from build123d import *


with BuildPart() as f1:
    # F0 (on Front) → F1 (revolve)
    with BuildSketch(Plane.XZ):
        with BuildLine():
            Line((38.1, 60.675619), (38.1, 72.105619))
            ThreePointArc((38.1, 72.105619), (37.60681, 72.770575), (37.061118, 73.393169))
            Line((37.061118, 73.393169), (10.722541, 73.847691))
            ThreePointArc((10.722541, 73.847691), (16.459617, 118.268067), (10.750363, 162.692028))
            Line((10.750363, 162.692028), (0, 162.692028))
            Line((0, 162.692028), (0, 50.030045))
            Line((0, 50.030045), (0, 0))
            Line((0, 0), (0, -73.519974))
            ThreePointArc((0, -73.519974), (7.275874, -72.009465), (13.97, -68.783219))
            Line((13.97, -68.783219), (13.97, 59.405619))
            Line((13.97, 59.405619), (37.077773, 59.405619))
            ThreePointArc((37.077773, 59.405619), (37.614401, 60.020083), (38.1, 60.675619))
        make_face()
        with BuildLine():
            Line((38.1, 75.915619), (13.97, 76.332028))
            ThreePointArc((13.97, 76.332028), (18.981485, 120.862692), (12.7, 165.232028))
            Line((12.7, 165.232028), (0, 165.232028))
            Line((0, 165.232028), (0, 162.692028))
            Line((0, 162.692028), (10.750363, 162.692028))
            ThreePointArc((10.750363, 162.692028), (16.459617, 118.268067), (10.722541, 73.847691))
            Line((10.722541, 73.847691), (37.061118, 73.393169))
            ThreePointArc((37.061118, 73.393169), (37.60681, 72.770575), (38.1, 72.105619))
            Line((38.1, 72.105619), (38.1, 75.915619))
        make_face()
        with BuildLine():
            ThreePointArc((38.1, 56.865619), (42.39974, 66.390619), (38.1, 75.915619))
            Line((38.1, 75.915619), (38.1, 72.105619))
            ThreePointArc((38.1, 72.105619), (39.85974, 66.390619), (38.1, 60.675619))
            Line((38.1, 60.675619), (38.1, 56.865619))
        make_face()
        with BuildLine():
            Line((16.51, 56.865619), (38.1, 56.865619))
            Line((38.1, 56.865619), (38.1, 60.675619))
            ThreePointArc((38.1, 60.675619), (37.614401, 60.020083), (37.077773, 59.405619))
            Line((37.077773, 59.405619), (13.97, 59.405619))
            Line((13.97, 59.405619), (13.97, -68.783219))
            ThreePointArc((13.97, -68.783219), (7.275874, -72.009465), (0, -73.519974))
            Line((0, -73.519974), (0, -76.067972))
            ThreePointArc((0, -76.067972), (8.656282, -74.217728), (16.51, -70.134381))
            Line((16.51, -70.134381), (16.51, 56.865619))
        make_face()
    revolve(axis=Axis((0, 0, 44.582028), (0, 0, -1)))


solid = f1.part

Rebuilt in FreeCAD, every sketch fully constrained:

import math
import FreeCAD as App
import Part
import Sketcher
from FreeCAD import Vector
Q = App.Units.Quantity

doc = App.newDocument("Part")
body = doc.addObject("PartDesign::Body", "Body")

sketch1 = body.newObject("Sketcher::SketchObject", "Sketch")
sketch1.AttachmentSupport = (doc.getObject("XZ_Plane"), [""])
sketch1.MapMode = "FlatFace"
sketch1.addGeometry(Part.LineSegment(Vector(0, 165.232028, 0), Vector(0, -76.067972, 0)), False)
sketch1.addGeometry(Part.ArcOfCircle(Part.Circle(Vector(-2.511562, -43.14361, 0), Vector(0, 0, 1), 33.020017), math.radians(-85.637766), math.radians(-54.825993)), False)
sketch1.addGeometry(Part.LineSegment(Vector(16.51, -70.134381, 0), Vector(16.51, 56.865619, 0)), False)
sketch1.addGeometry(Part.LineSegment(Vector(16.51, 56.865619, 0), Vector(38.1, 56.865619, 0)), False)
sketch1.addGeometry(Part.ArcOfCircle(Part.Circle(Vector(29.699741, 66.390619, 0), Vector(0, 0, 1), 12.699999), math.radians(-48.590382), math.radians(48.590382)), False)
sketch1.addGeometry(Part.LineSegment(Vector(38.1, 75.915619, 0), Vector(13.97, 76.332028, 0)), False)
sketch1.addGeometry(Part.ArcOfCircle(Part.Circle(Vector(-158.800382, 118.322951, 0), Vector(0, 0, 1), 177.800007), math.radians(-13.660566), math.radians(15.297477)), False)
sketch1.addGeometry(Part.LineSegment(Vector(12.7, 165.232028, 0), Vector(0, 165.232028, 0)), False)
sketch1.addGeometry(Part.ArcOfCircle(Part.Circle(Vector(29.699742, 66.390619, 0), Vector(0, 0, 1), 10.159998), math.radians(-34.228874), math.radians(34.228874)), False)
sketch1.addGeometry(Part.LineSegment(Vector(38.1, 60.675619, 0), Vector(38.1, 72.105619, 0)), False)
sketch1.addConstraint(Sketcher.Constraint("Coincident", 0, 2, 1, 1))
sketch1.addConstraint(Sketcher.Constraint("Coincident", 1, 2, 2, 1))
sketch1.addConstraint(Sketcher.Constraint("Coincident", 2, 2, 3, 1))
sketch1.addConstraint(Sketcher.Constraint("Coincident", 3, 2, 4, 1))
sketch1.addConstraint(Sketcher.Constraint("Coincident", 4, 2, 5, 1))
sketch1.addConstraint(Sketcher.Constraint("Coincident", 5, 2, 6, 1))
sketch1.addConstraint(Sketcher.Constraint("Coincident", 6, 2, 7, 1))
sketch1.addConstraint(Sketcher.Constraint("Coincident", 7, 2, 0, 1))
sketch1.addConstraint(Sketcher.Constraint("Coincident", 8, 1, 9, 1))
sketch1.addConstraint(Sketcher.Constraint("Coincident", 9, 2, 8, 2))
sketch1.addConstraint(Sketcher.Constraint("Vertical", 0))
sketch1.addConstraint(Sketcher.Constraint("Vertical", 2))
sketch1.addConstraint(Sketcher.Constraint("Horizontal", 3))
sketch1.addConstraint(Sketcher.Constraint("Horizontal", 7))
sketch1.addConstraint(Sketcher.Constraint("Vertical", 9))
sketch1.addConstraint(Sketcher.Constraint("Coincident", 8, 3, 4, 3))
sketch1.addConstraint(Sketcher.Constraint("PointOnObject", 0, 2, -2))
sketch1.addConstraint(Sketcher.Constraint("Vertical", 3, 2, 4, 2))
sketch1.addConstraint(Sketcher.Constraint("Vertical", 4, 2, 8, 1))
sketch1.addConstraint(Sketcher.Constraint("Radius", 4, Q("0.5 in")))
sketch1.addConstraint(Sketcher.Constraint("Radius", 8, Q("0.3999999 in")))
sketch1.addConstraint(Sketcher.Constraint("DistanceY", 2, 1, 2, 2, Q("5 in")))
sketch1.addConstraint(Sketcher.Constraint("DistanceX", 7, 2, 7, 1, Q("0.5 in")))
sketch1.addConstraint(Sketcher.Constraint("DistanceY", 0, 2, 0, 1, Q("9.5 in")))
sketch1.addConstraint(Sketcher.Constraint("DistanceX", 6, 2, 4, 2, Q("1 in")))
sketch1.addConstraint(Sketcher.Constraint("DistanceX", 3, 1, 3, 2, Q("0.85 in")))
sketch1.addConstraint(Sketcher.Constraint("DistanceY", 9, 1, 9, 2, Q("0.45 in")))
sketch1.addConstraint(Sketcher.Constraint("DistanceX", 5, 2, 2, 2, Q("0.1 in")))
sketch1.addConstraint(Sketcher.Constraint("DistanceY", 5, 2, 6, 2, Q("3.5 in")))
sketch1.addConstraint(Sketcher.Constraint("Radius", 1, 33.020017))
sketch1.addConstraint(Sketcher.Constraint("Radius", 6, 177.800007))
sketch1.addConstraint(Sketcher.Constraint("DistanceY", 1, 3, -1, 1, 43.14361))
sketch1.addConstraint(Sketcher.Constraint("DistanceY", -1, 1, 4, 3, 66.390619))
revolution = body.newObject("PartDesign::Revolution", "Revolution")
revolution.Profile = sketch1
revolution.ReferenceAxis = (sketch1, ["V_Axis"])
revolution.Angle = 360

doc.recompute()
